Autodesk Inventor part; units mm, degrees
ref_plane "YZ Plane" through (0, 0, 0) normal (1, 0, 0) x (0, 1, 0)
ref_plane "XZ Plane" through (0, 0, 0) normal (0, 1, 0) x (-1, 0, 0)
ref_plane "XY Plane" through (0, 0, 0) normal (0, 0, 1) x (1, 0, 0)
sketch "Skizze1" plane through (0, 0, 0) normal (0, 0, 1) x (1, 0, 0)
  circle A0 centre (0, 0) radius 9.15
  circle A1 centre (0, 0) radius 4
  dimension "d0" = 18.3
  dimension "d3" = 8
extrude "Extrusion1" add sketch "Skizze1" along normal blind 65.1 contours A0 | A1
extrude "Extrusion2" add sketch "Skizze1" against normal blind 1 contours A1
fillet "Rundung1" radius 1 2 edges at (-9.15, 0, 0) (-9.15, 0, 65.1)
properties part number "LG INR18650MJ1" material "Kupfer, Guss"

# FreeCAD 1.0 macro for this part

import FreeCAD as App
import Part
import Sketcher
from FreeCAD import Vector
Q = App.Units.Quantity


def edges_at(feature, points):
    """Names of the edges that pass closest to the given points."""
    edges = feature.Shape.Edges
    near = lambda p: min(range(len(edges)), key=lambda i: edges[i].distToShape(Part.Vertex(*p))[0])
    return sorted({f"Edge{near(p) + 1}" for p in points})

doc = App.newDocument("Part")
body = doc.addObject("PartDesign::Body", "Body")

sketch1 = doc.addObject("Sketcher::SketchObject", "Sketch")
body.addObject(sketch1)
sketch1.AttachmentSupport = (doc.XY_Plane, [""])
sketch1.MapMode = "FlatFace"
sketch1.addGeometry(Part.Circle(Vector(0, 0, 0), Vector(0, 0, 1), 9), False)
sketch1.addConstraint(Sketcher.Constraint("Coincident", 0, 3, -1, 1))
sketch1.addConstraint(Sketcher.Constraint("Diameter", 0, Q("18.3 mm")))
pad1 = doc.addObject("PartDesign::Pad", "Pad")
body.addObject(pad1)
pad1.Profile = sketch1
pad1.Length = 65.1

sketch2 = doc.addObject("Sketcher::SketchObject", "Sketch001")
body.addObject(sketch2)
sketch2.AttachmentSupport = (doc.XY_Plane, [""])
sketch2.MapMode = "FlatFace"
sketch2.addGeometry(Part.Circle(Vector(0, 0, 0), Vector(0, 0, 1), 4), False)
sketch2.addConstraint(Sketcher.Constraint("Coincident", 0, 3, -1, 1))
sketch2.addConstraint(Sketcher.Constraint("Diameter", 0, Q("8 mm")))
pad2 = doc.addObject("PartDesign::Pad", "Pad001")
body.addObject(pad2)
pad2.Profile = sketch2
pad2.Length = 1
pad2.Reversed = True
doc.recompute()

fillet = doc.addObject("PartDesign::Fillet", "Fillet")
body.addObject(fillet)
fillet.Base = (pad2, edges_at(pad2, [(-9.15, 0, 0), (-9.15, 0, 65.1)]))
fillet.Radius = 1

doc.recompute()
